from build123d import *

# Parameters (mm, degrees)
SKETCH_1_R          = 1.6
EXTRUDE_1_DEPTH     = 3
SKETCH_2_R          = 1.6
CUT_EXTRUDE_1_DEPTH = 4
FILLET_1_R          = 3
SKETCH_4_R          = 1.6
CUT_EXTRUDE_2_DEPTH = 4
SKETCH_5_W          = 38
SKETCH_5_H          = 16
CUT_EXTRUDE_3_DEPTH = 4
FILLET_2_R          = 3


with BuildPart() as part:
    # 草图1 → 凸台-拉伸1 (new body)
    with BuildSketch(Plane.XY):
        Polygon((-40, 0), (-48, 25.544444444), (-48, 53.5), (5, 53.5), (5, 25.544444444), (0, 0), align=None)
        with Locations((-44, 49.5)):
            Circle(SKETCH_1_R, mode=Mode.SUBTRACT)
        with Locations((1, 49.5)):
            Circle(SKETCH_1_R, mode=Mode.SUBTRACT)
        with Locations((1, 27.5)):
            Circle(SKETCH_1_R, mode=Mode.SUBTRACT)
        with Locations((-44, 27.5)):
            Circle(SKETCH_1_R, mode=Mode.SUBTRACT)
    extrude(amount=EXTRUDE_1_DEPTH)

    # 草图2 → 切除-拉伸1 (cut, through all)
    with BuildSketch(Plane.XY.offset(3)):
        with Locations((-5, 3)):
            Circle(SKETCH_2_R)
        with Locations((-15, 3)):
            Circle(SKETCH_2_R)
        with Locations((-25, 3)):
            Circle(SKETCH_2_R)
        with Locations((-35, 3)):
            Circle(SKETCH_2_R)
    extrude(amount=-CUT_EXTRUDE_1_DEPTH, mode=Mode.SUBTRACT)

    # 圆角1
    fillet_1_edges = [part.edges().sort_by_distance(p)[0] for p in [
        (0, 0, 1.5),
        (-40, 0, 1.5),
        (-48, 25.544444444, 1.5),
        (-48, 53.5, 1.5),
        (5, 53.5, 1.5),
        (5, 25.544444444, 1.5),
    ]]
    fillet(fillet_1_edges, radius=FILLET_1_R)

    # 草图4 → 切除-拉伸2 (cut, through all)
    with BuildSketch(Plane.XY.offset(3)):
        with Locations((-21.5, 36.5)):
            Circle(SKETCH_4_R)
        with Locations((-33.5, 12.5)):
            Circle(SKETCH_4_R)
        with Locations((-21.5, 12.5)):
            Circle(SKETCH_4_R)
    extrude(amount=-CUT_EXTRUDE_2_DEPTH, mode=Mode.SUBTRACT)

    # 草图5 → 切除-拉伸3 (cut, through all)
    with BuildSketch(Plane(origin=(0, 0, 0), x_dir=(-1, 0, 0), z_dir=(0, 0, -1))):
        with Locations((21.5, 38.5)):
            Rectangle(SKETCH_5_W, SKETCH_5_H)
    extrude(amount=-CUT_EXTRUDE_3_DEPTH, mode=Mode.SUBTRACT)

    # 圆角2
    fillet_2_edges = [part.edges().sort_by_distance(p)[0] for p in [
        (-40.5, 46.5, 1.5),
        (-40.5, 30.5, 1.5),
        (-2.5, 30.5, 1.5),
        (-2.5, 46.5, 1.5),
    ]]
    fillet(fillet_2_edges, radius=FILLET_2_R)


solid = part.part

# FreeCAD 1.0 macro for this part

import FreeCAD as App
import Part
import Sketcher

V = App.Vector


def edges_at(feature, points):
    """Names of the edges that pass closest to the given points."""
    edges = feature.Shape.Edges
    near = lambda p: min(range(len(edges)), key=lambda i: edges[i].distToShape(Part.Vertex(*p))[0])
    return sorted({f"Edge{near(p) + 1}" for p in points})

doc = App.newDocument("Part")
params = doc.addObject("Spreadsheet::Sheet", "Params")
for row, (alias, value) in enumerate([
    ("sketch1_diameter", "3.2 mm"),
    ("sketch1_width", "40 mm"),
    ("sketch1_width2", "53 mm"),
    ("pad1_length", "3 mm"),
    ("sketch2_diameter", "3.2 mm"),
    ("fillet_radius", "3 mm"),
    ("sketch3_diameter", "3.2 mm"),
    ("sketch4_width", "38 mm"),
    ("sketch4_height", "16 mm"),
    ("fillet2_radius", "3 mm"),
], start=1):
    params.set(f"A{row}", alias)
    params.set(f"B{row}", "=" + value)
    params.setAlias(f"B{row}", alias)

body = doc.addObject("PartDesign::Body", "Body")

# Sketch on XY plane
sketch1 = body.newObject("Sketcher::SketchObject", "Sketch")
sketch1.AttachmentSupport = (doc.getObject("XY_Plane"), [""])
sketch1.MapMode = "FlatFace"
sketch1.addGeometry(Part.LineSegment(V(-48, 25.544444, 0), V(-40, 0, 0)), False)
sketch1.addGeometry(Part.LineSegment(V(-40, 0, 0), V(0, 0, 0)), False)
sketch1.addGeometry(Part.LineSegment(V(0, 0, 0), V(5, 25.544444, 0)), False)
sketch1.addGeometry(Part.LineSegment(V(5, 25.544444, 0), V(5, 53.5, 0)), False)
sketch1.addGeometry(Part.LineSegment(V(5, 53.5, 0), V(-48, 53.5, 0)), False)
sketch1.addGeometry(Part.LineSegment(V(-48, 53.5, 0), V(-48, 25.544444, 0)), False)
sketch1.addGeometry(Part.Circle(V(1, 27.5, 0), V(0, 0, 1), 1.6), False)
sketch1.addGeometry(Part.Circle(V(-44, 27.5, 0), V(0, 0, 1), 1.6), False)
sketch1.addGeometry(Part.Circle(V(1, 49.5, 0), V(0, 0, 1), 1.6), False)
sketch1.addGeometry(Part.Circle(V(-44, 49.5, 0), V(0, 0, 1), 1.6), False)
sketch1.addConstraint(Sketcher.Constraint("Coincident", 0, 2, 1, 1))
sketch1.addConstraint(Sketcher.Constraint("Coincident", 1, 2, 2, 1))
sketch1.addConstraint(Sketcher.Constraint("Coincident", 2, 2, 3, 1))
sketch1.addConstraint(Sketcher.Constraint("Coincident", 3, 2, 4, 1))
sketch1.addConstraint(Sketcher.Constraint("Coincident", 4, 2, 5, 1))
sketch1.addConstraint(Sketcher.Constraint("Coincident", 5, 2, 0, 1))
sketch1.addConstraint(Sketcher.Constraint("Horizontal", 1))
sketch1.addConstraint(Sketcher.Constraint("Vertical", 3))
sketch1.addConstraint(Sketcher.Constraint("Horizontal", 4))
sketch1.addConstraint(Sketcher.Constraint("Vertical", 5))
sketch1.addConstraint(Sketcher.Constraint("Coincident", 1, 2, -1, 1))
sketch1.addConstraint(Sketcher.Constraint("Equal", 6, 7))
sketch1.addConstraint(Sketcher.Constraint("Equal", 7, 8))
sketch1.addConstraint(Sketcher.Constraint("Equal", 8, 9))
sketch1.addConstraint(Sketcher.Constraint("Horizontal", 6, 3, 7, 3))
sketch1.addConstraint(Sketcher.Constraint("Horizontal", 8, 3, 9, 3))
sketch1.addConstraint(Sketcher.Constraint("Horizontal", 2, 2, 5, 2))
sketch1.addConstraint(Sketcher.Constraint("Vertical", 6, 3, 8, 3))
sketch1.addConstraint(Sketcher.Constraint("Vertical", 7, 3, 9, 3))
sketch1.addConstraint(Sketcher.Constraint("Diameter", 6, 3.2))
sketch1.addConstraint(Sketcher.Constraint("DistanceX", 1, 1, 1, 2, 40.0))
sketch1.addConstraint(Sketcher.Constraint("DistanceX", 4, 2, 4, 1, 53.0))
sketch1.addConstraint(Sketcher.Constraint("DistanceX", -1, 1, 6, 3, 1.0))
sketch1.addConstraint(Sketcher.Constraint("DistanceX", 7, 3, -1, 1, 44.0))
sketch1.addConstraint(Sketcher.Constraint("DistanceX", -1, 1, 2, 2, 5.0))
sketch1.addConstraint(Sketcher.Constraint("DistanceY", 6, 3, 8, 3, 22.0))
sketch1.addConstraint(Sketcher.Constraint("DistanceY", 8, 3, 3, 2, 4.0))
sketch1.addConstraint(Sketcher.Constraint("DistanceY", -1, 1, 6, 3, 27.5))
sketch1.addConstraint(Sketcher.Constraint("Distance", 2, 26.029188))
sketch1.setExpression("Constraints[19]", "Params.sketch1_diameter")
sketch1.setExpression("Constraints[20]", "Params.sketch1_width")
sketch1.setExpression("Constraints[21]", "Params.sketch1_width2")
pad1 = body.newObject("PartDesign::Pad", "Pad")
pad1.Profile = sketch1
pad1.setExpression("Length", "Params.pad1_length")

# Sketch on XY plane
sketch2 = body.newObject("Sketcher::SketchObject", "Sketch001")
sketch2.AttachmentSupport = (doc.getObject("XY_Plane"), [""])
sketch2.MapMode = "FlatFace"
sketch2.AttachmentOffset = App.Placement(V(0, 0, 3), App.Rotation())
sketch2.addGeometry(Part.Circle(V(-5, 3, 0), V(0, 0, 1), 1.6), False)
sketch2.addGeometry(Part.Circle(V(-15, 3, 0), V(0, 0, 1), 1.6), False)
sketch2.addGeometry(Part.Circle(V(-25, 3, 0), V(0, 0, 1), 1.6), False)
sketch2.addGeometry(Part.Circle(V(-35, 3, 0), V(0, 0, 1), 1.6), False)
sketch2.addConstraint(Sketcher.Constraint("Equal", 0, 1))
sketch2.addConstraint(Sketcher.Constraint("Equal", 1, 2))
sketch2.addConstraint(Sketcher.Constraint("Equal", 2, 3))
sketch2.addConstraint(Sketcher.Constraint("Horizontal", 0, 3, 1, 3))
sketch2.addConstraint(Sketcher.Constraint("Horizontal", 1, 3, 2, 3))
sketch2.addConstraint(Sketcher.Constraint("Horizontal", 2, 3, 3, 3))
sketch2.addConstraint(Sketcher.Constraint("Diameter", 0, 3.2))
sketch2.addConstraint(Sketcher.Constraint("DistanceX", 0, 3, -1, 1, 5.0))
sketch2.addConstraint(Sketcher.Constraint("DistanceY", -1, 1, 0, 3, 3.0))
sketch2.addConstraint(Sketcher.Constraint("DistanceX", 1, 3, -1, 1, 15.0))
sketch2.addConstraint(Sketcher.Constraint("DistanceX", 2, 3, -1, 1, 25.0))
sketch2.addConstraint(Sketcher.Constraint("DistanceX", 3, 3, -1, 1, 35.0))
sketch2.setExpression("Constraints[6]", "Params.sketch2_diameter")
pocket1 = body.newObject("PartDesign::Pocket", "Pocket")
pocket1.Profile = sketch2
pocket1.Type = "ThroughAll"
doc.recompute()

fillet = body.newObject("PartDesign::Fillet", "Fillet")
fillet.Base = (pocket1, edges_at(pocket1, [
    (0, 0, 1.5),
    (-40, 0, 1.5),
    (-48, 25.544, 1.5),
    (-48, 53.5, 1.5),
    (5, 53.5, 1.5),
    (5, 25.544, 1.5),
]))
fillet.setExpression("Radius", "Params.fillet_radius")

# Sketch on XY plane
sketch3 = body.newObject("Sketcher::SketchObject", "Sketch002")
sketch3.AttachmentSupport = (doc.getObject("XY_Plane"), [""])
sketch3.MapMode = "FlatFace"
sketch3.AttachmentOffset = App.Placement(V(0, 0, 3), App.Rotation())
sketch3.addGeometry(Part.Circle(V(-21.5, 36.5, 0), V(0, 0, 1), 1.6), False)
sketch3.addGeometry(Part.Circle(V(-33.5, 12.5, 0), V(0, 0, 1), 1.6), False)
sketch3.addGeometry(Part.Circle(V(-21.5, 12.5, 0), V(0, 0, 1), 1.6), False)
sketch3.addConstraint(Sketcher.Constraint("Equal", 0, 1))
sketch3.addConstraint(Sketcher.Constraint("Equal", 1, 2))
sketch3.addConstraint(Sketcher.Constraint("Horizontal", 1, 3, 2, 3))
sketch3.addConstraint(Sketcher.Constraint("Vertical", 0, 3, 2, 3))
sketch3.addConstraint(Sketcher.Constraint("Diameter", 0, 3.2))
sketch3.addConstraint(Sketcher.Constraint("DistanceX", 1, 3, 0, 3, 12.0))
sketch3.addConstraint(Sketcher.Constraint("DistanceY", 1, 3, 0, 3, 24.0))
sketch3.addConstraint(Sketcher.Constraint("DistanceX", 0, 3, -1, 1, 21.5))
sketch3.addConstraint(Sketcher.Constraint("DistanceY", -1, 1, 0, 3, 36.5))
sketch3.setExpression("Constraints[4]", "Params.sketch3_diameter")
pocket2 = body.newObject("PartDesign::Pocket", "Pocket001")
pocket2.Profile = sketch3
pocket2.Type = "ThroughAll"

# Sketch on XY plane
sketch4 = body.newObject("Sketcher::SketchObject", "Sketch003")
sketch4.AttachmentSupport = (doc.getObject("XY_Plane"), [""])
sketch4.MapMode = "FlatFace"
sketch4.addGeometry(Part.LineSegment(V(-2.5, 46.5, 0), V(-2.5, 30.5, 0)), False)
sketch4.addGeometry(Part.LineSegment(V(-2.5, 30.5, 0), V(-40.5, 30.5, 0)), False)
sketch4.addGeometry(Part.LineSegment(V(-40.5, 30.5, 0), V(-40.5, 46.5, 0)), False)
sketch4.addGeometry(Part.LineSegment(V(-40.5, 46.5, 0), V(-2.5, 46.5, 0)), False)
sketch4.addConstraint(Sketcher.Constraint("Coincident", 0, 2, 1, 1))
sketch4.addConstraint(Sketcher.Constraint("Coincident", 1, 2, 2, 1))
sketch4.addConstraint(Sketcher.Constraint("Coincident", 2, 2, 3, 1))
sketch4.addConstraint(Sketcher.Constraint("Coincident", 3, 2, 0, 1))
sketch4.addConstraint(Sketcher.Constraint("Vertical", 0))
sketch4.addConstraint(Sketcher.Constraint("Horizontal", 1))
sketch4.addConstraint(Sketcher.Constraint("Vertical", 2))
sketch4.addConstraint(Sketcher.Constraint("Horizontal", 3))
sketch4.addConstraint(Sketcher.Constraint("DistanceX", 1, 2, 1, 1, 38.0))
sketch4.addConstraint(Sketcher.Constraint("DistanceY", 0, 2, 0, 1, 16.0))
sketch4.addConstraint(Sketcher.Constraint("DistanceX", 0, 2, -1, 1, 2.5))
sketch4.addConstraint(Sketcher.Constraint("DistanceY", -1, 1, 0, 2, 30.5))
sketch4.setExpression("Constraints[8]", "Params.sketch4_width")
sketch4.setExpression("Constraints[9]", "Params.sketch4_height")
pocket3 = body.newObject("PartDesign::Pocket", "Pocket002")
pocket3.Profile = sketch4
pocket3.Type = "ThroughAll"
pocket3.Reversed = True
doc.recompute()

fillet2 = body.newObject("PartDesign::Fillet", "Fillet001")
fillet2.Base = (pocket3, edges_at(pocket3, [
    (-40.5, 46.5, 1.5),
    (-40.5, 30.5, 1.5),
    (-2.5, 30.5, 1.5),
    (-2.5, 46.5, 1.5),
]))
fillet2.setExpression("Radius", "Params.fillet2_radius")

doc.recompute()
